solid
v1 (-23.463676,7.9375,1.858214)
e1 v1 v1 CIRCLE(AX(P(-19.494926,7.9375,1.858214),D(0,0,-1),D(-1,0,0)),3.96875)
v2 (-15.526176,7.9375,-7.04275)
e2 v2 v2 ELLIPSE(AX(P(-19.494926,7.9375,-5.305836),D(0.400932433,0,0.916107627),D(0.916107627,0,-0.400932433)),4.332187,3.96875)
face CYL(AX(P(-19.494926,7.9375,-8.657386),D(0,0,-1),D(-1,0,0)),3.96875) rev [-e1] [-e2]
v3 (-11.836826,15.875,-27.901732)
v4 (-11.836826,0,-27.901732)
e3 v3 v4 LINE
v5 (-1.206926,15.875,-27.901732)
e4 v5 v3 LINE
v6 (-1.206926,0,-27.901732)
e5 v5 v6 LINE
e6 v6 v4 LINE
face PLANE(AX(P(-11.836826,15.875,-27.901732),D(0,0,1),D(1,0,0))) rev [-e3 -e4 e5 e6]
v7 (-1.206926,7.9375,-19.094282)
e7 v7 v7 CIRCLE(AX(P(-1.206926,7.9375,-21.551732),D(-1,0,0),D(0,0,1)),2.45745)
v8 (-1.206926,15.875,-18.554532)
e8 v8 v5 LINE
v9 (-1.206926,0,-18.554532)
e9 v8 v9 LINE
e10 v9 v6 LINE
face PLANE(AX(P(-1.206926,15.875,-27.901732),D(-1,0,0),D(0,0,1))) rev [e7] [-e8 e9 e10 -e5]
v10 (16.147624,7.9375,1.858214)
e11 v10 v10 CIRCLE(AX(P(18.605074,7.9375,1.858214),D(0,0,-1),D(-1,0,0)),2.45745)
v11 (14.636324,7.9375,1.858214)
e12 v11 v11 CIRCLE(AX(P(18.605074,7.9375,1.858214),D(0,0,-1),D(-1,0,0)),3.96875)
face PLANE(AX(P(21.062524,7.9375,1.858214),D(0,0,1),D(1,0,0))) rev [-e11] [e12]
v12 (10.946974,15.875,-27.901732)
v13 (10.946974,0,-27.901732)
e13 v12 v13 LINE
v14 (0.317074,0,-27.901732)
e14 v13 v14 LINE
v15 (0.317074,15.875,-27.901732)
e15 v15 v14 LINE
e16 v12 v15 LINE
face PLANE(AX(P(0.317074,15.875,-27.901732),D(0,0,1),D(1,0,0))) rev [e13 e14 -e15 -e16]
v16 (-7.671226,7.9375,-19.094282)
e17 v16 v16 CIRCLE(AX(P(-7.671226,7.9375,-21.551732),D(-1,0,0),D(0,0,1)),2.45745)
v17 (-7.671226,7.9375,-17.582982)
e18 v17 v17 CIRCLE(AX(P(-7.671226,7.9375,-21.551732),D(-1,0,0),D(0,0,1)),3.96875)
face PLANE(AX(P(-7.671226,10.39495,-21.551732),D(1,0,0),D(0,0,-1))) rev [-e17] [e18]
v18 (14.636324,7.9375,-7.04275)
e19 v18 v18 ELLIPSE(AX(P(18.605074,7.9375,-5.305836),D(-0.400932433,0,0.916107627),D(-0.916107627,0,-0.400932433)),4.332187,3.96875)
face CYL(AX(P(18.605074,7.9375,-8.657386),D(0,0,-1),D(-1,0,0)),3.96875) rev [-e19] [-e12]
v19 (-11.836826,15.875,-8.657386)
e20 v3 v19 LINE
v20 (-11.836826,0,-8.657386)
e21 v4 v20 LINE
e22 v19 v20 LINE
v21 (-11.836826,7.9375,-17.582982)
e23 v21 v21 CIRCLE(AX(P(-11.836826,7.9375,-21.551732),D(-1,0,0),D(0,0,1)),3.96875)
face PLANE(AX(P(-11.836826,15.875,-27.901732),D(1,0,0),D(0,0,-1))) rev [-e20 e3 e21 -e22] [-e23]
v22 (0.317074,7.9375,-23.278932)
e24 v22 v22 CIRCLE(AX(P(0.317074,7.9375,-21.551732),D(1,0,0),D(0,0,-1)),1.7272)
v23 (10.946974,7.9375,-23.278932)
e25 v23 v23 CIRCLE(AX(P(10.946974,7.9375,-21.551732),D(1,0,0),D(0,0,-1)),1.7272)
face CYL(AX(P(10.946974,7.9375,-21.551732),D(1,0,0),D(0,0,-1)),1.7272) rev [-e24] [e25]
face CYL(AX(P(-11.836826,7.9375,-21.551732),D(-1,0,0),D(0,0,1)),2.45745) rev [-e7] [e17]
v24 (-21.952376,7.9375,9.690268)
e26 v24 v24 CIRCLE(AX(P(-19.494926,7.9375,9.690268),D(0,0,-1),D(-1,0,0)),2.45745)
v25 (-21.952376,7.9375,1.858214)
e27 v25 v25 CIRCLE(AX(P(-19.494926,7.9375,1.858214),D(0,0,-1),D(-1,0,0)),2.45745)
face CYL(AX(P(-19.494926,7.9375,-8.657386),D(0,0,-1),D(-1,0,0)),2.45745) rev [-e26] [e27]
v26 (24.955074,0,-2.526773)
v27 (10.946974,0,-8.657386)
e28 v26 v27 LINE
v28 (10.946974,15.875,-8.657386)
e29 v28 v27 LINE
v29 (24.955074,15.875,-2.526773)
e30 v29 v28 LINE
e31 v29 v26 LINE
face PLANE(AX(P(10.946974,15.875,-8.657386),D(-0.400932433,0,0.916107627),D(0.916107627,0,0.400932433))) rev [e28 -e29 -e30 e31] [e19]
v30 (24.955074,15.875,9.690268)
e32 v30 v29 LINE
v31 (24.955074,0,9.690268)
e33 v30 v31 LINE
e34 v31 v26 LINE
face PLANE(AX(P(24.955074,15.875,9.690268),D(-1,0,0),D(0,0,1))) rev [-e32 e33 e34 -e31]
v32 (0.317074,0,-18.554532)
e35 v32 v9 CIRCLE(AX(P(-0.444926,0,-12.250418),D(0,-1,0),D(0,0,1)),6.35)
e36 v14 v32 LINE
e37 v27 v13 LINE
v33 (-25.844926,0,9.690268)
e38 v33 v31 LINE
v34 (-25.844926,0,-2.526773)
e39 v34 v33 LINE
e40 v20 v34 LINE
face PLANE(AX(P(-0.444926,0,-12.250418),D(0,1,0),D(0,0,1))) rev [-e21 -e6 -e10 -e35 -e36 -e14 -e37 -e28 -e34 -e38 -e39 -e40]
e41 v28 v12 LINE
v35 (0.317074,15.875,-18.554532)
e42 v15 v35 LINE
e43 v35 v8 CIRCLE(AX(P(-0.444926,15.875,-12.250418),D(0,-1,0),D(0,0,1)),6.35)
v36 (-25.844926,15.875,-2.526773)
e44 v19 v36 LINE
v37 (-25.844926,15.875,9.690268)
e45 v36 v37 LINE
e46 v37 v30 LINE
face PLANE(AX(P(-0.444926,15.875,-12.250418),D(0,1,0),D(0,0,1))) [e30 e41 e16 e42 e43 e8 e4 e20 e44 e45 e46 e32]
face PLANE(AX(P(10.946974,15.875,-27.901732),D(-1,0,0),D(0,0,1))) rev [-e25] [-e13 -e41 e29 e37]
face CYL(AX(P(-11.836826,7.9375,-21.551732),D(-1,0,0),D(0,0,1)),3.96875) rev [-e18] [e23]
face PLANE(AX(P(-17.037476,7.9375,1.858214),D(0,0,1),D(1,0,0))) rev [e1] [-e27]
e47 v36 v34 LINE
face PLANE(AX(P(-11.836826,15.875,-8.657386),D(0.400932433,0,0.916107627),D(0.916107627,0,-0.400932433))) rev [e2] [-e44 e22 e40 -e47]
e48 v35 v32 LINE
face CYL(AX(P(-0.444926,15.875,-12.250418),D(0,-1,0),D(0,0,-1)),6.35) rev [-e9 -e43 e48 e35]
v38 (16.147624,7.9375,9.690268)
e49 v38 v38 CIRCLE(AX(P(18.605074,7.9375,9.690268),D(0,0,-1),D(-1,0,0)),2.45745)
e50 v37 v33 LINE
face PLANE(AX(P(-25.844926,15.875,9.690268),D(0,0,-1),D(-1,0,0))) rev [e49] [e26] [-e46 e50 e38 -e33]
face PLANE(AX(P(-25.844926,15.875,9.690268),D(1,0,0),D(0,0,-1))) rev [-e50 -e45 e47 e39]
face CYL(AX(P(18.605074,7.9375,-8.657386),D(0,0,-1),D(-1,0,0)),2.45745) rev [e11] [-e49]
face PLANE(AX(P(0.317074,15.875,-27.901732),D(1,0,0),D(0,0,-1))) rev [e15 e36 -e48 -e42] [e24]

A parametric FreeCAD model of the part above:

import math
import FreeCAD as App
import Part
import Sketcher
from FreeCAD import Vector
Q = App.Units.Quantity

doc = App.newDocument("Part")
params = doc.addObject("Spreadsheet::Sheet", "Params")
for row, (alias, value) in enumerate([
    ("sketch1_width", "2 in"),
    ("sketch1_radius", "0.25 in"),
    ("sketch1_height", "0.368 in"),
    ("pad1_length", "0.625 in"),
    ("sketch2_diameter", "0.136 in"),
    ("hole_diameter", "0.136 in"),
    ("hole_depth", "0.4185 in"),
    ("hole2_diameter", "0.1935 in"),
    ("hole2_depth", "0.4185 in"),
    ("hole2_cbore_diameter", "0.3125 in"),
    ("hole2_cbore_depth", "0.164 in"),
    ("hole3_diameter", "0.1935 in"),
    ("hole3_cbore_diameter", "0.3125 in"),
    ("hole3_cbore_depth", "0.414 in"),
], start=1):
    params.set(f"A{row}", alias)
    params.set(f"B{row}", "=" + value)
    params.setAlias(f"B{row}", alias)

body = doc.addObject("PartDesign::Body", "Body")

# Sketch on XZ plane
sketch1 = body.newObject("Sketcher::SketchObject", "Sketch")
sketch1.AttachmentSupport = (doc.getObject("XZ_Plane"), [""])
sketch1.MapMode = "FlatFace"
sketch1.addGeometry([
    Part.LineSegment(Vector(-1.2, -27.9, 0), Vector(-11.8, -27.9, 0)),  # 0
    Part.LineSegment(Vector(-11.8, -27.9, 0), Vector(-11.8, -8.7, 0)),  # 1
    Part.LineSegment(Vector(-11.8, -8.7, 0), Vector(-25.8, -2.5, 0)),  # 2
    Part.LineSegment(Vector(-25.8, -2.5, 0), Vector(-25.8, 9.7, 0)),  # 3
    Part.LineSegment(Vector(-25.8, 9.7, 0), Vector(25, 9.7, 0)),  # 4
    Part.LineSegment(Vector(25, 9.7, 0), Vector(25, -2.5, 0)),  # 5
    Part.LineSegment(Vector(25, -2.5, 0), Vector(10.9, -8.7, 0)),  # 6
    Part.LineSegment(Vector(10.9, -8.7, 0), Vector(10.9, -27.9, 0)),  # 7
    Part.LineSegment(Vector(10.9, -27.9, 0), Vector(0.3, -27.9, 0)),  # 8
    Part.LineSegment(Vector(0.3, -27.9, 0), Vector(0.3, -18.6, 0)),  # 9
    Part.ArcOfCircle(Part.Circle(Vector(-0.4, -12.3, 0), Vector(0, 0, 1), 6.3), math.radians(-83), math.radians(263)),  # 10
    Part.LineSegment(Vector(-1.2, -18.6, 0), Vector(-1.2, -27.9, 0)),  # 11
], False)
sketch1.addConstraint([
    Sketcher.Constraint("Coincident", 0, 2, 1, 1),
    Sketcher.Constraint("Coincident", 1, 2, 2, 1),
    Sketcher.Constraint("Coincident", 2, 2, 3, 1),
    Sketcher.Constraint("Coincident", 3, 2, 4, 1),
    Sketcher.Constraint("Coincident", 4, 2, 5, 1),
    Sketcher.Constraint("Coincident", 5, 2, 6, 1),
    Sketcher.Constraint("Coincident", 6, 2, 7, 1),
    Sketcher.Constraint("Coincident", 7, 2, 8, 1),
    Sketcher.Constraint("Coincident", 8, 2, 9, 1),
    Sketcher.Constraint("Coincident", 9, 2, 10, 1),
    Sketcher.Constraint("Coincident", 10, 2, 11, 1),
    Sketcher.Constraint("Coincident", 11, 2, 0, 1),
    Sketcher.Constraint("Horizontal", 0),
    Sketcher.Constraint("Vertical", 1),
    Sketcher.Constraint("Vertical", 3),
    Sketcher.Constraint("Horizontal", 4),
    Sketcher.Constraint("Vertical", 5),
    Sketcher.Constraint("Vertical", 7),
    Sketcher.Constraint("Horizontal", 8),
    Sketcher.Constraint("Vertical", 9),
    Sketcher.Constraint("Vertical", 11),
    Sketcher.Constraint("Horizontal", 2, 2, 5, 2),
    Sketcher.Constraint("Horizontal", 1, 2, 6, 2),
    Sketcher.Constraint("Horizontal", 0, 2, 7, 2),
    Sketcher.Constraint("Horizontal", 9, 2, 10, 2),
    Sketcher.Constraint("Equal", 0, 8),
    Sketcher.Constraint("Equal", 2, 6),
    Sketcher.Constraint("DistanceX", 4, 1, 4, 2, Q("2 in")),
    Sketcher.Constraint("Radius", 10, Q("0.25 in")),
    Sketcher.Constraint("DistanceY", 9, 1, 9, 2, Q("0.368 in")),
    Sketcher.Constraint("DistanceY", 0, 2, 3, 2, Q("1.48 in")),
    Sketcher.Constraint("DistanceX", 10, 3, 8, 2, Q("0.03 in")),
    Sketcher.Constraint("DistanceX", 0, 2, 0, 1, Q("0.4185 in")),
    Sketcher.Constraint("DistanceY", 10, 3, -1, 1, Q("0.4822999 in")),
    Sketcher.Constraint("DistanceY", 3, 1, 3, 2, 12.21704),
    Sketcher.Constraint("Distance", 2, 15.290889),
    Sketcher.Constraint("DistanceX", 10, 3, -1, 1, 0.444926),
])
sketch1.setExpression("Constraints[27]", "Params.sketch1_width")
sketch1.setExpression("Constraints[28]", "Params.sketch1_radius")
sketch1.setExpression("Constraints[29]", "Params.sketch1_height")
pad1 = body.newObject("PartDesign::Pad", "Pad")
pad1.Profile = sketch1
pad1.setExpression("Length", "Params.pad1_length")
pad1.Reversed = True

# Sketch on YZ plane
sketch2 = body.newObject("Sketcher::SketchObject", "Sketch001")
sketch2.AttachmentSupport = (doc.getObject("YZ_Plane"), [""])
sketch2.MapMode = "FlatFace"
sketch2.AttachmentOffset = App.Placement(Vector(0, 0, 10.946974), App.Rotation())
sketch2.addGeometry(Part.Circle(Vector(7.9, -21.6, 0), Vector(0, 0, 1), 1.7), False)
sketch2.addConstraint([
    Sketcher.Constraint("Diameter", 0, Q("0.136 in")),
    Sketcher.Constraint("DistanceX", -1, 1, 0, 3, Q("0.3125 in")),
    Sketcher.Constraint("DistanceY", 0, 3, -1, 1, 21.551732),
])
sketch2.setExpression("Constraints[0]", "Params.sketch2_diameter")
doc.recompute()
hole = body.newObject("PartDesign::Hole", "Hole")
hole.Profile = sketch2
hole.ThreadType = "None"
hole.setExpression("Diameter", "Params.hole_diameter")
hole.DepthType = "Dimension"
hole.setExpression("Depth", "Params.hole_depth")
hole.DrillPoint = "Flat"

# Sketch on YZ plane
sketch3 = body.newObject("Sketcher::SketchObject", "Sketch002")
sketch3.AttachmentSupport = (doc.getObject("YZ_Plane"), [""])
sketch3.MapMode = "FlatFace"
sketch3.AttachmentOffset = App.Placement(Vector(0, 0, -11.836826), App.Rotation())
sketch3.addGeometry(Part.Circle(Vector(7.9, -21.6, 0), Vector(0, 0, 1), 2.5), False)
sketch3.addConstraint([
    Sketcher.Constraint("Diameter", 0, Q("0.1935 in")),
    Sketcher.Constraint("DistanceX", -1, 1, 0, 3, Q("0.3125 in")),
    Sketcher.Constraint("DistanceY", 0, 3, -1, 1, 21.551732),
])
doc.recompute()
hole2 = body.newObject("PartDesign::Hole", "Hole001")
hole2.Profile = sketch3
hole2.ThreadType = "None"
hole2.setExpression("Diameter", "Params.hole2_diameter")
hole2.DepthType = "Dimension"
hole2.setExpression("Depth", "Params.hole2_depth")
hole2.DrillPoint = "Flat"
hole2.HoleCutType = "Counterbore"
hole2.setExpression("HoleCutDiameter", "Params.hole2_cbore_diameter")
hole2.setExpression("HoleCutDepth", "Params.hole2_cbore_depth")
hole2.Reversed = True

# Sketch on XY plane
sketch4 = body.newObject("Sketcher::SketchObject", "Sketch003")
sketch4.AttachmentSupport = (doc.getObject("XY_Plane"), [""])
sketch4.MapMode = "FlatFace"
sketch4.AttachmentOffset = App.Placement(Vector(0, 0, -8.657386), App.Rotation())
sketch4.addGeometry([
    Part.Circle(Vector(18.6, 7.9, 0), Vector(0, 0, 1), 2.5),
    Part.Circle(Vector(-19.5, 7.9, 0), Vector(0, 0, 1), 2.5),
], False)
sketch4.addConstraint([
    Sketcher.Constraint("Equal", 0, 1),
    Sketcher.Constraint("Horizontal", 0, 3, 1, 3),
    Sketcher.Constraint("Diameter", 0, Q("0.1935 in")),
    Sketcher.Constraint("DistanceX", 1, 3, 0, 3, Q("1.5 in")),
    Sketcher.Constraint("DistanceY", -1, 1, 0, 3, Q("0.3125 in")),
    Sketcher.Constraint("DistanceX", -1, 1, 0, 3, 18.605074),
])
doc.recompute()
hole3 = body.newObject("PartDesign::Hole", "Hole002")
hole3.Profile = sketch4
hole3.ThreadType = "None"
hole3.setExpression("Diameter", "Params.hole3_diameter")
hole3.DepthType = "ThroughAll"
hole3.HoleCutType = "Counterbore"
hole3.setExpression("HoleCutDiameter", "Params.hole3_cbore_diameter")
hole3.setExpression("HoleCutDepth", "Params.hole3_cbore_depth")
hole3.Reversed = True

doc.recompute()
